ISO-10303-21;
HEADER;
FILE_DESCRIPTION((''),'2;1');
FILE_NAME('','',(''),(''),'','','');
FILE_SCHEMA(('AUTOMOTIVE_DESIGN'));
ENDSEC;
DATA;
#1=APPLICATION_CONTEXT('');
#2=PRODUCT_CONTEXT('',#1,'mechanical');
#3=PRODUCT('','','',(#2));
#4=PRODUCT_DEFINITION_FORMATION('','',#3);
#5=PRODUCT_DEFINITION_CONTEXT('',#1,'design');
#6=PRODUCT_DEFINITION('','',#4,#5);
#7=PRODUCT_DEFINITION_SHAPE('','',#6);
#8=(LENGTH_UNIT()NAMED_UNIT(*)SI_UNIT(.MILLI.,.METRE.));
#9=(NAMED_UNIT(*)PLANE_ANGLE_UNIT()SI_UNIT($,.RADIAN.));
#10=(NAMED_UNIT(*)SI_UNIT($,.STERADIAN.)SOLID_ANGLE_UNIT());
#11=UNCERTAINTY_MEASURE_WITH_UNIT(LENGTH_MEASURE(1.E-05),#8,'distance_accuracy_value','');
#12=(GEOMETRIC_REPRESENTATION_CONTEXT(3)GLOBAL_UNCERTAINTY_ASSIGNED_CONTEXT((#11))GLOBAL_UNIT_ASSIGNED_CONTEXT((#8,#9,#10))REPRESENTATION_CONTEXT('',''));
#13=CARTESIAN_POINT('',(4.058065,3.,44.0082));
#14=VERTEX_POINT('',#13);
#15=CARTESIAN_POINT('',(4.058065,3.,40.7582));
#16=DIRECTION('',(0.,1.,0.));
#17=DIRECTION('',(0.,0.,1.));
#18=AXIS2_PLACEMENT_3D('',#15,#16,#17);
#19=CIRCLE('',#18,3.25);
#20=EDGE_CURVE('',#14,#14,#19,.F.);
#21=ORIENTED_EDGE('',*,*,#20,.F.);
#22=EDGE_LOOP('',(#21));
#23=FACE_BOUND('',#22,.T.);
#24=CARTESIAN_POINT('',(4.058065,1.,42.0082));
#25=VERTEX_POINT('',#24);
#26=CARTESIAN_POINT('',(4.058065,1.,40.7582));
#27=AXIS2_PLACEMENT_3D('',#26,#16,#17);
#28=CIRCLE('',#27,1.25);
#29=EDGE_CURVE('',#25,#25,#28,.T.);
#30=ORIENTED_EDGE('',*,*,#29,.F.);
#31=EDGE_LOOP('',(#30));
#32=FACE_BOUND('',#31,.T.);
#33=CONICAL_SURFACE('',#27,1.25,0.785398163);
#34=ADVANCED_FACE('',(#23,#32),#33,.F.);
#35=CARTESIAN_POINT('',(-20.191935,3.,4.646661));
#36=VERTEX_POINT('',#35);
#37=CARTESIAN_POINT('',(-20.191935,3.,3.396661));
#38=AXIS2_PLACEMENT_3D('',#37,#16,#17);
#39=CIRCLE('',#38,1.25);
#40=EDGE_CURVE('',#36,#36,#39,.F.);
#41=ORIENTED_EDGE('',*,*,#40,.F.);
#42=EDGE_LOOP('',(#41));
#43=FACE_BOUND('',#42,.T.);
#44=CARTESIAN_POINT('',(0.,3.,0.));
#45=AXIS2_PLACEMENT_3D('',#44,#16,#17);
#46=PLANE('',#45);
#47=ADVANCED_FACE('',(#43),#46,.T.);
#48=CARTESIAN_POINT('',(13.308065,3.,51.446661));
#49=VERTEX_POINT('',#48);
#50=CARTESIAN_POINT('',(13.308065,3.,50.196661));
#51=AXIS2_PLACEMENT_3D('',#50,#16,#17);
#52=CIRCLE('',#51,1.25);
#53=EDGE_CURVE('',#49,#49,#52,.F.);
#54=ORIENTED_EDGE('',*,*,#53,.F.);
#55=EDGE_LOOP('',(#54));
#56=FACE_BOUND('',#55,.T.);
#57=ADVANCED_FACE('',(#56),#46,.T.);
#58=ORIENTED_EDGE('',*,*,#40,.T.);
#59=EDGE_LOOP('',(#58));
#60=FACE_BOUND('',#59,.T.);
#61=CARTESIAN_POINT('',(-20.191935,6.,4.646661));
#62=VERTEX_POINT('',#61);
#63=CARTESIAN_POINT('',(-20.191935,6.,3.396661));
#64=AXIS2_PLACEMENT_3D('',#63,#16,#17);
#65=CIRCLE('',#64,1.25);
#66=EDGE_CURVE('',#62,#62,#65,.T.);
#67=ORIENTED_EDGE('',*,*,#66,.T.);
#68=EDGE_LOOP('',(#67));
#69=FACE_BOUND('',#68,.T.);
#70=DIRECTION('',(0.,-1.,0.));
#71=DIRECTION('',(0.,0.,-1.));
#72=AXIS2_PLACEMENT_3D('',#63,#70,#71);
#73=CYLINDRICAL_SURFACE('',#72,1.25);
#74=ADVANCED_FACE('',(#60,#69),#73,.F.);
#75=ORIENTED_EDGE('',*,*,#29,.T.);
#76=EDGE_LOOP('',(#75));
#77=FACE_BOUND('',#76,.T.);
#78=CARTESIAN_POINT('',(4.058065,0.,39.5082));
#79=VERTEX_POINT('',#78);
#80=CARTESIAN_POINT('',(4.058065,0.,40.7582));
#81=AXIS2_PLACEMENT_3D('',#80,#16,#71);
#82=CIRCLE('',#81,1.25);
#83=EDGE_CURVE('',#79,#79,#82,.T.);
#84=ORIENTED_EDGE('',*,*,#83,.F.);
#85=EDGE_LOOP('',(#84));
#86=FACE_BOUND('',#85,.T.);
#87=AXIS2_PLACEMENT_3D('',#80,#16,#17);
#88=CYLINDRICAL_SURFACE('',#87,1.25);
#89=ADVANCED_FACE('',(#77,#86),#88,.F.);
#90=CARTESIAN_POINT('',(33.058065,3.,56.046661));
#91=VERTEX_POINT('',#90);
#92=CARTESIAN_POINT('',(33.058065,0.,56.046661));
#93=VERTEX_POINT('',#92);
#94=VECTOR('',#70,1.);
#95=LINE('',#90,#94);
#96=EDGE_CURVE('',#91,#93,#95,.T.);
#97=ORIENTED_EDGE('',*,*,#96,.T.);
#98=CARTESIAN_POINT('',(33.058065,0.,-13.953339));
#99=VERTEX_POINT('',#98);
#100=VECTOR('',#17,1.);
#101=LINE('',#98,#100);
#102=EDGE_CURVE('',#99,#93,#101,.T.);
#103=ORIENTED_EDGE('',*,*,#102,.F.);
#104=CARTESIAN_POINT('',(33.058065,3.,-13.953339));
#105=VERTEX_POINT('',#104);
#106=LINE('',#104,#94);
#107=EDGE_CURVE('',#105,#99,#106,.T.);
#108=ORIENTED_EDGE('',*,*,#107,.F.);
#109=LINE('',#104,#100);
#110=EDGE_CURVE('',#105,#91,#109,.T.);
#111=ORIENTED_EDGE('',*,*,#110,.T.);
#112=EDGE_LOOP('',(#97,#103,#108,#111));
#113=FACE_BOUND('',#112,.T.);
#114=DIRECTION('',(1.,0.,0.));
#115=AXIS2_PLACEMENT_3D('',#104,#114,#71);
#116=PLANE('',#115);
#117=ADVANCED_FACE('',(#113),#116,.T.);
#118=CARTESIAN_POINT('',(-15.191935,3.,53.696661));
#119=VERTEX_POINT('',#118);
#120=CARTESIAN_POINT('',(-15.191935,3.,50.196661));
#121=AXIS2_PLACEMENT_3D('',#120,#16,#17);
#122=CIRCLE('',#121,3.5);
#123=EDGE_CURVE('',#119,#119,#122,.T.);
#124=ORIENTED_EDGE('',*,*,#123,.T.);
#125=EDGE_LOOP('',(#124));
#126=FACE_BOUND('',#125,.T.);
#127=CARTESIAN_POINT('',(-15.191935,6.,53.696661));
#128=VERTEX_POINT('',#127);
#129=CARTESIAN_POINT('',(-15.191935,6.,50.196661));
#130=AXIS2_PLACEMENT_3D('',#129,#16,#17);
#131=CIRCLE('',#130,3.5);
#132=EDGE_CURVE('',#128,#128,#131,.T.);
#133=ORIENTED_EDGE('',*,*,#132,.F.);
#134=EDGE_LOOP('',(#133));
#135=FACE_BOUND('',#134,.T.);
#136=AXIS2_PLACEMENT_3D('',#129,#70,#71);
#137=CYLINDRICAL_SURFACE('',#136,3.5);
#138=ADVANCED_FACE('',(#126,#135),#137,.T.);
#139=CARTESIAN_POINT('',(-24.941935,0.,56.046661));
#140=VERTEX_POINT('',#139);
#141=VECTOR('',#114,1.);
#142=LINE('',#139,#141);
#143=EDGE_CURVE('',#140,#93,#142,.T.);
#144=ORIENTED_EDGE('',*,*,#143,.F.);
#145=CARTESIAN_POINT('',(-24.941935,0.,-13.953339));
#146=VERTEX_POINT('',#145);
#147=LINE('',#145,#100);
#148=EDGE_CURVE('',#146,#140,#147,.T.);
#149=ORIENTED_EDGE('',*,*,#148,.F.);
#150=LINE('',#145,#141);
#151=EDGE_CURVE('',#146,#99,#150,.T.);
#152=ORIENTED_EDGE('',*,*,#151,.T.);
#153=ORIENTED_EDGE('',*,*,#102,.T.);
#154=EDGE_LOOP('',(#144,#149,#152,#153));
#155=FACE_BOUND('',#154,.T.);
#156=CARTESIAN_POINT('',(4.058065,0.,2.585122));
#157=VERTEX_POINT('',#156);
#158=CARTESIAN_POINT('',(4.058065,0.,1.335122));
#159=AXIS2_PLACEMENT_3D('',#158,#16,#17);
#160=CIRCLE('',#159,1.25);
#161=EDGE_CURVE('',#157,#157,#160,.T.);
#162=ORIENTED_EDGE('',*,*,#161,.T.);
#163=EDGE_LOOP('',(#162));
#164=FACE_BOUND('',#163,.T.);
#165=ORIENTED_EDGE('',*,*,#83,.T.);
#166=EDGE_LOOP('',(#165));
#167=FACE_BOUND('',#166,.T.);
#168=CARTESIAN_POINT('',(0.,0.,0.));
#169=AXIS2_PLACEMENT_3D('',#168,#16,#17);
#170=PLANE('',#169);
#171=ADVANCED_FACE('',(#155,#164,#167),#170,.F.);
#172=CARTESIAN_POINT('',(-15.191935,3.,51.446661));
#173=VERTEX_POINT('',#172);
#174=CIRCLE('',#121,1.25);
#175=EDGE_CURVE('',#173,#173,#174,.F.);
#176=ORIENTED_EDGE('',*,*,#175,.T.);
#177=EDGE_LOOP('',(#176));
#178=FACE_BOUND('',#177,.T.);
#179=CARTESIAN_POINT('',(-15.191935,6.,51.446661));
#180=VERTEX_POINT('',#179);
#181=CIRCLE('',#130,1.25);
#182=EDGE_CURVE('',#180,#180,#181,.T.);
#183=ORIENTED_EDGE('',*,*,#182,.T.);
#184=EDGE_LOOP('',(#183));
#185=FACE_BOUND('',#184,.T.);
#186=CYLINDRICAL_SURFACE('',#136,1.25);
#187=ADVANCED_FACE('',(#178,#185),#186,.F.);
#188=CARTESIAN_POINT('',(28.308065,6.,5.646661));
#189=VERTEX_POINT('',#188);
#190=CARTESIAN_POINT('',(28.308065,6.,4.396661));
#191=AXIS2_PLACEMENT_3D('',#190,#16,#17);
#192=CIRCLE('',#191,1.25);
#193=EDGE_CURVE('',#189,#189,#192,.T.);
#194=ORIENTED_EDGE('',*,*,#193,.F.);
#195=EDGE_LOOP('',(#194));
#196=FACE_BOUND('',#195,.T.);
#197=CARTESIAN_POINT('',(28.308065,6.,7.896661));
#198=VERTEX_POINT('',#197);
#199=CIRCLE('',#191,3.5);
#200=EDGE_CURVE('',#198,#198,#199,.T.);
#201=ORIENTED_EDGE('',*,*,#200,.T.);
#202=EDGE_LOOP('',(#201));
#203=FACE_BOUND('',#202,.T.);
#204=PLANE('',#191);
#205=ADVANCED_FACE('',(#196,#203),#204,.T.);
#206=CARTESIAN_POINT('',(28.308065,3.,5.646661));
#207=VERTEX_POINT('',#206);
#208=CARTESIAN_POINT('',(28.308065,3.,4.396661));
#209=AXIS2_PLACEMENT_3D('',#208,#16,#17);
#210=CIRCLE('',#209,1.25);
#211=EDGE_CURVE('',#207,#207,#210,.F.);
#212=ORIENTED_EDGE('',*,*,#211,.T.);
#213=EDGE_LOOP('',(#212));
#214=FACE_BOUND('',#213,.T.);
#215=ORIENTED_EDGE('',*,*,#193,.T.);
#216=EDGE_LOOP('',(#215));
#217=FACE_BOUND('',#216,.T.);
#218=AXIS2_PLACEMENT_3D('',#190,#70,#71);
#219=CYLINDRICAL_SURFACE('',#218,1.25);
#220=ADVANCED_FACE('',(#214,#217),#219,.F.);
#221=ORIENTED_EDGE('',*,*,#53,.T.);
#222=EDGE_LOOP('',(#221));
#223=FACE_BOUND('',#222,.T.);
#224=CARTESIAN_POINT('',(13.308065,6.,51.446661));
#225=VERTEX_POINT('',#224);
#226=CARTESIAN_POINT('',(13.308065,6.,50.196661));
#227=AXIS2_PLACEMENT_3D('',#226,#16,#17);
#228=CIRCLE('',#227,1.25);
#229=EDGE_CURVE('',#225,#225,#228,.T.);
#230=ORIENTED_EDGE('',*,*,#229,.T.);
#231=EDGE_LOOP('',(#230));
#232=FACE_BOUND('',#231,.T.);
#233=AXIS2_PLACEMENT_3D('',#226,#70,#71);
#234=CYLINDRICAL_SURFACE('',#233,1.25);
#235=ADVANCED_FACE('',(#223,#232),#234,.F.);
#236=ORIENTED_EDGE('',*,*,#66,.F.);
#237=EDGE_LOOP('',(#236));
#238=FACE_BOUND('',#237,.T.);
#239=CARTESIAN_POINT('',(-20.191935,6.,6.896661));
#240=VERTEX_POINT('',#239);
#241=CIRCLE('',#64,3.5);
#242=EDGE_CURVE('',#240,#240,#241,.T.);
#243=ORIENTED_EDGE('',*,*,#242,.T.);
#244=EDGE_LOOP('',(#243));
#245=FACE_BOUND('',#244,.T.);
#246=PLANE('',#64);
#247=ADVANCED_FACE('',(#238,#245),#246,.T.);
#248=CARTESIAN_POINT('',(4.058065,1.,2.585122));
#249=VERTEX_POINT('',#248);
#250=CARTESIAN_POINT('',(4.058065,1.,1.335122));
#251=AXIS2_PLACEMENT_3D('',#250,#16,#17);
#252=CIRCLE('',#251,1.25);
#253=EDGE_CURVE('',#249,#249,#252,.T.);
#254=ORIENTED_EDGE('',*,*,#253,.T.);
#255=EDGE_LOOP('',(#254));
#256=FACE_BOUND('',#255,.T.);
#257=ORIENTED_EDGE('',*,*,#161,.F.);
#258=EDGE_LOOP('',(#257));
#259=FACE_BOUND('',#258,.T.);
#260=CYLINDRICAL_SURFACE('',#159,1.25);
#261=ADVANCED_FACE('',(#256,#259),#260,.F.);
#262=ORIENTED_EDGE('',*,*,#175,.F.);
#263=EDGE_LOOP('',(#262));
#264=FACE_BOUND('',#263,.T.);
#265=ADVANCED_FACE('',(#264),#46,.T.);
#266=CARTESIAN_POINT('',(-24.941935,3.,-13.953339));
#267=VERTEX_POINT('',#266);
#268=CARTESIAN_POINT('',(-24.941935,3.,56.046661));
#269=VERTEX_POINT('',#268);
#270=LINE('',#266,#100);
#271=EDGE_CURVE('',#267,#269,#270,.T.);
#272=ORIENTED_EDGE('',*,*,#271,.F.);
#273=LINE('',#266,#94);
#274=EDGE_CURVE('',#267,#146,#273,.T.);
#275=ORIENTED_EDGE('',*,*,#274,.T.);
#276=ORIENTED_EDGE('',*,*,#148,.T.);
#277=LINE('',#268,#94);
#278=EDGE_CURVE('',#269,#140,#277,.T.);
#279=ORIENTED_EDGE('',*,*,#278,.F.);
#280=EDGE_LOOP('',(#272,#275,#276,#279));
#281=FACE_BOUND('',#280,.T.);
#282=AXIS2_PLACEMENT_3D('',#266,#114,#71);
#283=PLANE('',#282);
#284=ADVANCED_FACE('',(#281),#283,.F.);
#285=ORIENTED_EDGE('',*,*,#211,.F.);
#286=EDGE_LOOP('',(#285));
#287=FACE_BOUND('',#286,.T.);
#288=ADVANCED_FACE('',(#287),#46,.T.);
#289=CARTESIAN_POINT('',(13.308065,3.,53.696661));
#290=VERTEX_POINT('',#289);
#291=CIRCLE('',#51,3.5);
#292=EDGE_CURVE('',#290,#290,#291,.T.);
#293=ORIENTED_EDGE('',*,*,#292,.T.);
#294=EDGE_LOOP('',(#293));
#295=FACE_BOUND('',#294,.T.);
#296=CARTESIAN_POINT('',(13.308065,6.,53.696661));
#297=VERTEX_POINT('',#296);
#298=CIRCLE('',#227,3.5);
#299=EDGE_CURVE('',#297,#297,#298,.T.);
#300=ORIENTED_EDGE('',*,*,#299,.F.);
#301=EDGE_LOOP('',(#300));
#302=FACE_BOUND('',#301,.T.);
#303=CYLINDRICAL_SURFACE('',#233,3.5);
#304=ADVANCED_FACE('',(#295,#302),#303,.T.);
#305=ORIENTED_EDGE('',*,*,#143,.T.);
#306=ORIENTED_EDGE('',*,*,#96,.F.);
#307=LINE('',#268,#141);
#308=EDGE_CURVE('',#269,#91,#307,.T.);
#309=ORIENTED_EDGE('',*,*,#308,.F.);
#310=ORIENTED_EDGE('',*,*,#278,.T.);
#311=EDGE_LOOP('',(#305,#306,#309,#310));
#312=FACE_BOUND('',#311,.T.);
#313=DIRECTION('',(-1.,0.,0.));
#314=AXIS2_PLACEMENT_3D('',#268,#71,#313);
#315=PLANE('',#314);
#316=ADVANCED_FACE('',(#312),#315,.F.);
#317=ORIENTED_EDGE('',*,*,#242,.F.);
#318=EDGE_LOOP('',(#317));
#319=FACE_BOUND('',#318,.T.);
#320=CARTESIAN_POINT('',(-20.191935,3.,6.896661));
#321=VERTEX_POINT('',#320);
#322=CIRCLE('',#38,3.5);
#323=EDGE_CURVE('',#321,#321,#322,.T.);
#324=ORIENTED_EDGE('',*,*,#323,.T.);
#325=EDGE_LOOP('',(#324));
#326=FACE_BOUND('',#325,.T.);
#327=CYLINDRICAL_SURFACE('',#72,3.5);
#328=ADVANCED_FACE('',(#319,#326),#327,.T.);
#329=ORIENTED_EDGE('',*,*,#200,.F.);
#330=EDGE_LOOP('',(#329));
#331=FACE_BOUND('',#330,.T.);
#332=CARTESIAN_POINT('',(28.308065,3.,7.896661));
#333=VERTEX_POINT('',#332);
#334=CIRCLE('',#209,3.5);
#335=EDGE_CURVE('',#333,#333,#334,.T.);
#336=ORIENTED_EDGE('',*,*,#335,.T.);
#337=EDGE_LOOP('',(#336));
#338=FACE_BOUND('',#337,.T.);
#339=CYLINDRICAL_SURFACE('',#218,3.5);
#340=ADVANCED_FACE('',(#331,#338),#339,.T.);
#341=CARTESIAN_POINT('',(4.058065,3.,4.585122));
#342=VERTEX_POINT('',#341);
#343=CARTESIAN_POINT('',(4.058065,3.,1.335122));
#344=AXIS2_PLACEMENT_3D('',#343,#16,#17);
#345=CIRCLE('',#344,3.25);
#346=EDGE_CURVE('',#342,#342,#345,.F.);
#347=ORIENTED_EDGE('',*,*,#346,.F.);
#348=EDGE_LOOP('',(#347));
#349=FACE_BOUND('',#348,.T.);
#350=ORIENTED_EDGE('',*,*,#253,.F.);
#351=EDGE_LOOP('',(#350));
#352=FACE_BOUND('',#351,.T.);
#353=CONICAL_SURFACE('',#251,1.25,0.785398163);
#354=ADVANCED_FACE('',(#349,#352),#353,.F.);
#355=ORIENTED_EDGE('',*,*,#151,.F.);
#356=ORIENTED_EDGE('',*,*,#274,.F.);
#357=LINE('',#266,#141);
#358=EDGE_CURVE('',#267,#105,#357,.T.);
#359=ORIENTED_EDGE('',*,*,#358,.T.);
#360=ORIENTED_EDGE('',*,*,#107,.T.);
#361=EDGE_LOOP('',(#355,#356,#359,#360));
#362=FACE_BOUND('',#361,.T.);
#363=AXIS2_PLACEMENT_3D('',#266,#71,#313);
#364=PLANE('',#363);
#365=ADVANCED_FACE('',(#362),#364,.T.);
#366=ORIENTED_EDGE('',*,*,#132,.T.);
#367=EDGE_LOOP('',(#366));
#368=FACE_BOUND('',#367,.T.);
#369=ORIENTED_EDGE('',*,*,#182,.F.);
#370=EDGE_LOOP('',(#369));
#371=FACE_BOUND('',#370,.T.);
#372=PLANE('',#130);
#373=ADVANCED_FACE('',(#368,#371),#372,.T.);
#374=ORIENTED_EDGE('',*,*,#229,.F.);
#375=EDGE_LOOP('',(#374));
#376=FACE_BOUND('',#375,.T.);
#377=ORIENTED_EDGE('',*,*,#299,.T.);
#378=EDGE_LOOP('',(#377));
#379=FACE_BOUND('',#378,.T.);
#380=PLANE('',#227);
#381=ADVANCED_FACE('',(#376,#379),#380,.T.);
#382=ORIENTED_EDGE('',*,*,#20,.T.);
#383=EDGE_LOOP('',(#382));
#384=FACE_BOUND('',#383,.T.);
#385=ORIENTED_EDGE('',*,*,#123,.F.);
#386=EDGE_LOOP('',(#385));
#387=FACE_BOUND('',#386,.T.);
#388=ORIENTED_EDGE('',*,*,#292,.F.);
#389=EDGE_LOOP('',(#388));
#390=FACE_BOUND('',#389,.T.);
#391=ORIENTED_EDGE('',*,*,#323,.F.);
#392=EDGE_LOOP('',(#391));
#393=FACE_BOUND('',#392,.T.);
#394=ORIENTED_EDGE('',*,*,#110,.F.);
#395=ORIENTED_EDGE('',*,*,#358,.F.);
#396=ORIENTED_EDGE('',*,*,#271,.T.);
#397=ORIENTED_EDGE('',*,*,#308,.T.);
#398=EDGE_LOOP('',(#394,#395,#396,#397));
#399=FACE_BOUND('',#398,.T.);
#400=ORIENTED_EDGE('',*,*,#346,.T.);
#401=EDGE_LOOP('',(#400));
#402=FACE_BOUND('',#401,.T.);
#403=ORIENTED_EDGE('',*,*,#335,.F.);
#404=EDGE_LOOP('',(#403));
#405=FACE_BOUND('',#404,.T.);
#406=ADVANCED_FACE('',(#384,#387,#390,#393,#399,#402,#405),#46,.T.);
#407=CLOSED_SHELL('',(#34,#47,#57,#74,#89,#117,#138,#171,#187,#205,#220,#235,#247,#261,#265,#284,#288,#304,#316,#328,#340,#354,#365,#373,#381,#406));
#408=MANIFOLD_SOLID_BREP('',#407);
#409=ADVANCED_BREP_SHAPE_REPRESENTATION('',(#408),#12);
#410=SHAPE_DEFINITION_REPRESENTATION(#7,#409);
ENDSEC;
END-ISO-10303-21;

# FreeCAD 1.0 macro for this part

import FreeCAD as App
import Part
import Sketcher


def edges_at(feature, points):
    """Names of the edges that pass closest to the given points."""
    edges = feature.Shape.Edges
    near = lambda p: min(range(len(edges)), key=lambda i: edges[i].distToShape(Part.Vertex(*p))[0])
    return sorted({f"Edge{near(p) + 1}" for p in points})


def add_polygon(sketch, points):
    """Adds a closed chain of lines whose ends are joined by coincident constraints."""
    first, n = sketch.GeometryCount, len(points)
    for a, b in zip(points, points[1:] + points[:1]):
        sketch.addGeometry(Part.LineSegment(App.Vector(*a, 0), App.Vector(*b, 0)), False)
    for i in range(n):
        sketch.addConstraint(Sketcher.Constraint("Coincident", first + i, 2, first + (i + 1) % n, 1))

doc = App.newDocument("Part")
body = doc.addObject("PartDesign::Body", "Body")

# Sketch on XZ plane
sketch1 = doc.addObject("Sketcher::SketchObject", "Sketch")
body.addObject(sketch1)
sketch1.AttachmentSupport = (doc.XZ_Plane, [""])
sketch1.MapMode = "FlatFace"
add_polygon(sketch1, [(-25, -14), (-25, 56), (33, 56), (33, -14)])  # lines 0-3
sketch1.addConstraint(Sketcher.Constraint("Vertical", 0))
sketch1.addConstraint(Sketcher.Constraint("Horizontal", 1))
sketch1.addConstraint(Sketcher.Constraint("Vertical", 2))
sketch1.addConstraint(Sketcher.Constraint("Horizontal", 3))
sketch1.addConstraint(Sketcher.Constraint("DistanceX", 1, 1, 1, 2, 58.0))
sketch1.addConstraint(Sketcher.Constraint("DistanceY", 0, 1, 0, 2, 70.0))
sketch1.addConstraint(Sketcher.Constraint("DistanceY", -1, 1, 0, 2, 56.046661))
sketch1.addConstraint(Sketcher.Constraint("DistanceX", 0, 2, -1, 1, 24.941935))
pad1 = doc.addObject("PartDesign::Pad", "Pad")
body.addObject(pad1)
pad1.Profile = sketch1
pad1.Length = 3
pad1.Reversed = True

# Sketch on XZ plane
sketch2 = doc.addObject("Sketcher::SketchObject", "Sketch001")
body.addObject(sketch2)
sketch2.AttachmentSupport = (doc.XZ_Plane, [""])
sketch2.MapMode = "FlatFace"
sketch2.AttachmentOffset = App.Placement(App.Vector(0, 0, -3), App.Rotation())
sketch2.addGeometry(Part.Circle(App.Vector(28.3, 4.4, 0), App.Vector(0, 0, 1), 3.5), False)
sketch2.addGeometry(Part.Circle(App.Vector(28.3, 4.4, 0), App.Vector(0, 0, 1), 1.2), False)
sketch2.addGeometry(Part.Circle(App.Vector(-20.2, 3.4, 0), App.Vector(0, 0, 1), 3.5), False)
sketch2.addGeometry(Part.Circle(App.Vector(-20.2, 3.4, 0), App.Vector(0, 0, 1), 1.2), False)
sketch2.addGeometry(Part.Circle(App.Vector(-15.2, 50.2, 0), App.Vector(0, 0, 1), 3.5), False)
sketch2.addGeometry(Part.Circle(App.Vector(-15.2, 50.2, 0), App.Vector(0, 0, 1), 1.2), False)
sketch2.addGeometry(Part.Circle(App.Vector(13.3, 50.2, 0), App.Vector(0, 0, 1), 3.5), False)
sketch2.addGeometry(Part.Circle(App.Vector(13.3, 50.2, 0), App.Vector(0, 0, 1), 1.2), False)
sketch2.addConstraint(Sketcher.Constraint("Coincident", 1, 3, 0, 3))
sketch2.addConstraint(Sketcher.Constraint("Coincident", 3, 3, 2, 3))
sketch2.addConstraint(Sketcher.Constraint("Coincident", 5, 3, 4, 3))
sketch2.addConstraint(Sketcher.Constraint("Coincident", 7, 3, 6, 3))
sketch2.addConstraint(Sketcher.Constraint("Equal", 0, 2))
sketch2.addConstraint(Sketcher.Constraint("Equal", 1, 3))
sketch2.addConstraint(Sketcher.Constraint("Equal", 2, 4))
sketch2.addConstraint(Sketcher.Constraint("Equal", 3, 5))
sketch2.addConstraint(Sketcher.Constraint("Equal", 4, 6))
sketch2.addConstraint(Sketcher.Constraint("Equal", 5, 7))
sketch2.addConstraint(Sketcher.Constraint("Horizontal", 5, 3, 6, 3))
sketch2.addConstraint(Sketcher.Constraint("Diameter", 0, 7.0))
sketch2.addConstraint(Sketcher.Constraint("Diameter", 1, 2.5))
sketch2.addConstraint(Sketcher.Constraint("DistanceY", 2, 3, 0, 3, 1.0))
sketch2.addConstraint(Sketcher.Constraint("DistanceX", 2, 3, 4, 3, 5.0))
sketch2.addConstraint(Sketcher.Constraint("DistanceX", 6, 3, 0, 3, 15.0))
sketch2.addConstraint(Sketcher.Constraint("DistanceX", 2, 3, 0, 3, 48.5))
sketch2.addConstraint(Sketcher.Constraint("DistanceY", 2, 3, 4, 3, 46.8))
sketch2.addConstraint(Sketcher.Constraint("DistanceY", -1, 1, 0, 3, 4.396661))
sketch2.addConstraint(Sketcher.Constraint("DistanceX", -1, 1, 0, 3, 28.308065))
pad2 = doc.addObject("PartDesign::Pad", "Pad001")
body.addObject(pad2)
pad2.Profile = sketch2
pad2.Length = 3
pad2.Reversed = True

# Sketch on XZ plane
sketch3 = doc.addObject("Sketcher::SketchObject", "Sketch002")
body.addObject(sketch3)
sketch3.AttachmentSupport = (doc.XZ_Plane, [""])
sketch3.MapMode = "FlatFace"
sketch3.AttachmentOffset = App.Placement(App.Vector(0, 0, -3), App.Rotation())
sketch3.addGeometry(Part.Circle(App.Vector(4.1, 1.3, 0), App.Vector(0, 0, 1), 1.2), False)
sketch3.addGeometry(Part.Circle(App.Vector(4.1, 40.8, 0), App.Vector(0, 0, 1), 1.2), False)
sketch3.addConstraint(Sketcher.Constraint("Equal", 0, 1))
sketch3.addConstraint(Sketcher.Constraint("Vertical", 0, 3, 1, 3))
sketch3.addConstraint(Sketcher.Constraint("Diameter", 0, 2.5))
sketch3.addConstraint(Sketcher.Constraint("DistanceY", -1, 1, 1, 3, 40.7582))
sketch3.addConstraint(Sketcher.Constraint("DistanceY", 0, 3, 1, 3, 39.423078))
sketch3.addConstraint(Sketcher.Constraint("DistanceX", -1, 1, 0, 3, 4.058065))
pocket1 = doc.addObject("PartDesign::Pocket", "Pocket")
body.addObject(pocket1)
pocket1.Profile = sketch3
pocket1.Length = 3
pocket1.Reversed = True
doc.recompute()

chamfer = doc.addObject("PartDesign::Chamfer", "Chamfer")
body.addObject(chamfer)
chamfer.Base = (pocket1, edges_at(pocket1, [(2.808, 3, 1.335), (2.808, 3, 40.758)]))
chamfer.Size = 2

doc.recompute()
